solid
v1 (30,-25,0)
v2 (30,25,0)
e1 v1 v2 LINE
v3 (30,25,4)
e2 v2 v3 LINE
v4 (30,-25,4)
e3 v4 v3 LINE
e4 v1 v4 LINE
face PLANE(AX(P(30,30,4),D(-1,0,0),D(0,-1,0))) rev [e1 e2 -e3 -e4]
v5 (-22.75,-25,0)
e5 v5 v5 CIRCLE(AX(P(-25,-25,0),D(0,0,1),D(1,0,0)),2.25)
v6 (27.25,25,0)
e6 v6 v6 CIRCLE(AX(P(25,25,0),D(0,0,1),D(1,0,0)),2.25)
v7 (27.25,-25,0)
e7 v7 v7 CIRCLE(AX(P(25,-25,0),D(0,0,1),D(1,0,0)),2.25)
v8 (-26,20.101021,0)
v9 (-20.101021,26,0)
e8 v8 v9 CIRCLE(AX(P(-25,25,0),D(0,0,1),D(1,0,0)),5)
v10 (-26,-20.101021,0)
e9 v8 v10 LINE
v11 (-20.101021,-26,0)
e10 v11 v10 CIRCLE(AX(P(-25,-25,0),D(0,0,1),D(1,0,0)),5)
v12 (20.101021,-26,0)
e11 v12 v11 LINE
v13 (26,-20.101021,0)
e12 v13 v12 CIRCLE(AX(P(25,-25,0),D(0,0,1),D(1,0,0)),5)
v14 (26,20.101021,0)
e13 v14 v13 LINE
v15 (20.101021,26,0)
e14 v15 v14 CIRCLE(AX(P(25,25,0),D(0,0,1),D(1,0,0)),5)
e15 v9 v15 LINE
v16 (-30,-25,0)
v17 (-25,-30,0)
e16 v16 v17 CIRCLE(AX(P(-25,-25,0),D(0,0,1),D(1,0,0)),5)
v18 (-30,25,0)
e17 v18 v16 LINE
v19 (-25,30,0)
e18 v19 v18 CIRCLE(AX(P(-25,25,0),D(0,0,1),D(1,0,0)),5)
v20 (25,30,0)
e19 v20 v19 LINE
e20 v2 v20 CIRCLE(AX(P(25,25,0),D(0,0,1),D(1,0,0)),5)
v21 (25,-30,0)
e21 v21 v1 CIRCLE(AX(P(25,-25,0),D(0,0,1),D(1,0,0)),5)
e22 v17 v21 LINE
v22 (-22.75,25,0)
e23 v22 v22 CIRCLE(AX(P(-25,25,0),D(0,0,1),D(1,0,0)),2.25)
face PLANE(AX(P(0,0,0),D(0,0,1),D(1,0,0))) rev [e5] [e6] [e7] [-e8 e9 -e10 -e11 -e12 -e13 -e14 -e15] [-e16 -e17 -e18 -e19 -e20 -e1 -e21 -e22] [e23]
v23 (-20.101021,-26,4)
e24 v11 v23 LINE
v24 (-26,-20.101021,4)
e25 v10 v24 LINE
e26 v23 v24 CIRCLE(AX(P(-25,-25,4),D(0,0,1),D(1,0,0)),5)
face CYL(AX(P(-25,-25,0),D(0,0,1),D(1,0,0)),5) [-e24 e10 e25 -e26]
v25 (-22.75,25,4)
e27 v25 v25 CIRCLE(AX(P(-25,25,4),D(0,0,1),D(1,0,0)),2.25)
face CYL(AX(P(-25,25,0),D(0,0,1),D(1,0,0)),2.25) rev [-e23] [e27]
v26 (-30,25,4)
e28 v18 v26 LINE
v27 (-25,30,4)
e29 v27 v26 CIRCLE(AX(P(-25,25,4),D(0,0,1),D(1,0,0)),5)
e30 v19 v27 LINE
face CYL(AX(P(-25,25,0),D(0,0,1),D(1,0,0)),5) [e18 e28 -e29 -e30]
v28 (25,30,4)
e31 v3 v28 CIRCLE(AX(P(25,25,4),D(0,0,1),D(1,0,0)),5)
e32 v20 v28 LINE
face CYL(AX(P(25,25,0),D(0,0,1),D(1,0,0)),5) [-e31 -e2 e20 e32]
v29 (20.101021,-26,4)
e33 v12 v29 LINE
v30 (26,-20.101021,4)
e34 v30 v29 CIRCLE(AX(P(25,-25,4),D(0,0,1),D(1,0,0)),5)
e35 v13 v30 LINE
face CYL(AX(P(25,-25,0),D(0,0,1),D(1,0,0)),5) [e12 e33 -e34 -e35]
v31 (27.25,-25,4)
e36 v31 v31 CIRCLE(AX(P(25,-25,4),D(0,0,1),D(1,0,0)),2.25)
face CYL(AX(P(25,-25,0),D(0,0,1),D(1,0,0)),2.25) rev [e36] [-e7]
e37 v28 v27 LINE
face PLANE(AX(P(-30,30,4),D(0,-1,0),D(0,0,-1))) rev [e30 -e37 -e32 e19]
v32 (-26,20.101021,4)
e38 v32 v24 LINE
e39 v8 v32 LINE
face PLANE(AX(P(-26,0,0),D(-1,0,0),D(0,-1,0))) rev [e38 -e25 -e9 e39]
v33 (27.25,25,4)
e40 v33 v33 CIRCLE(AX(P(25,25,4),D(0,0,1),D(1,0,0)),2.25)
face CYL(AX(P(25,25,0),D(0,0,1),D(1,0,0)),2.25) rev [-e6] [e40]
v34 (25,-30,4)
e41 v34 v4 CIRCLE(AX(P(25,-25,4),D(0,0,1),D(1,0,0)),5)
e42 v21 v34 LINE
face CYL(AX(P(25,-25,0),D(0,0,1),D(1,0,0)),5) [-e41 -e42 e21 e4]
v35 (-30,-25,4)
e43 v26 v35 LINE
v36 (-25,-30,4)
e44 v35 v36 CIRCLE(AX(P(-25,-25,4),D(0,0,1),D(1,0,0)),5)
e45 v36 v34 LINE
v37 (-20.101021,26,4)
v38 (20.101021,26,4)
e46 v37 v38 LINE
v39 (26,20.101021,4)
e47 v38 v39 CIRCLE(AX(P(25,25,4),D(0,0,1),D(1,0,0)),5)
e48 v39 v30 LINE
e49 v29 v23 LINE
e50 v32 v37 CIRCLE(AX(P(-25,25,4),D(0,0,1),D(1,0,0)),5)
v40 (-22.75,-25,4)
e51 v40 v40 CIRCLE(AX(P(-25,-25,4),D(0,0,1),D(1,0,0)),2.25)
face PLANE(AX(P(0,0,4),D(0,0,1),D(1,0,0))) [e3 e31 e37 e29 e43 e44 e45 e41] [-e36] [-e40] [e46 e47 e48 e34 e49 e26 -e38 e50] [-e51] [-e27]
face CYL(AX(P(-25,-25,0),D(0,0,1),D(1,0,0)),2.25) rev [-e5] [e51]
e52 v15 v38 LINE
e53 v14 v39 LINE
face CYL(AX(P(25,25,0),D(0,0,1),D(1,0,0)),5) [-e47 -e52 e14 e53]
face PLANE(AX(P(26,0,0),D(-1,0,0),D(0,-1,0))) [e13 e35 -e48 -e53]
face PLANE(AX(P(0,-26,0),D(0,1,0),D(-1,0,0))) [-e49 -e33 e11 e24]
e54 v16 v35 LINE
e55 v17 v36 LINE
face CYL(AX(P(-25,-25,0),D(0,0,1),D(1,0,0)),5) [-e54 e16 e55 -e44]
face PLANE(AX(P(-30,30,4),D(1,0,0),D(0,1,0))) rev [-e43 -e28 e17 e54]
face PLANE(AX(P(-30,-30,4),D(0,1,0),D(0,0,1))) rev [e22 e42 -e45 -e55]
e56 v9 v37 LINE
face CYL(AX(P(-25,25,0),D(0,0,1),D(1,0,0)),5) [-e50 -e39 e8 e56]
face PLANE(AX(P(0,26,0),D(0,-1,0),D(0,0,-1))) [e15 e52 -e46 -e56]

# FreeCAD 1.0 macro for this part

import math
import FreeCAD as App
import Part
import Sketcher


def add_polygon(sketch, points):
    """Adds a closed chain of lines whose ends are joined by coincident constraints."""
    first, n = sketch.GeometryCount, len(points)
    for a, b in zip(points, points[1:] + points[:1]):
        sketch.addGeometry(Part.LineSegment(App.Vector(*a, 0), App.Vector(*b, 0)), False)
    for i in range(n):
        sketch.addConstraint(Sketcher.Constraint("Coincident", first + i, 2, first + (i + 1) % n, 1))

doc = App.newDocument("Part")
params = doc.addObject("Spreadsheet::Sheet", "Params")
for row, (alias, value) in enumerate([
    ("sketch1_width", "60 mm"),
    ("pad1_length", "4 mm"),
    ("sketch2_diameter", "4.5 mm"),
    ("pocket1_length", "4 mm"),
    ("sketch3_radius", "5 mm"),
    ("pocket2_length", "4 mm"),
], start=1):
    params.set(f"A{row}", alias)
    params.set(f"B{row}", "=" + value)
    params.setAlias(f"B{row}", alias)

body = doc.addObject("PartDesign::Body", "Body")

sketch1 = body.newObject("Sketcher::SketchObject", "Sketch")
sketch1.AttachmentSupport = (doc.getObject("XY_Plane"), [""])
sketch1.MapMode = "FlatFace"
add_polygon(sketch1, [(-30, 30), (-30, -30), (30, -30), (30, 30)])
sketch1.addConstraint([
    Sketcher.Constraint("Vertical", 0),
    Sketcher.Constraint("Horizontal", 1),
    Sketcher.Constraint("Vertical", 2),
    Sketcher.Constraint("Horizontal", 3),
    Sketcher.Constraint("Symmetric", 0, 2, 2, 2, -1, 1),
    Sketcher.Constraint("Equal", 3, 0),
    Sketcher.Constraint("DistanceX", 1, 1, 1, 2, 60.0),
])
sketch1.setExpression("Constraints[10]", "Params.sketch1_width")
pad1 = body.newObject("PartDesign::Pad", "Pad")
pad1.Profile = sketch1
pad1.setExpression("Length", "Params.pad1_length")

sketch2 = body.newObject("Sketcher::SketchObject", "Sketch001")
sketch2.AttachmentSupport = (doc.getObject("XY_Plane"), [""])
sketch2.MapMode = "FlatFace"
sketch2.AttachmentOffset = App.Placement(App.Vector(0, 0, 4), App.Rotation())
sketch2.addGeometry([
    Part.Circle(App.Vector(-25, 25, 0), App.Vector(0, 0, 1), 2.2),
    Part.Circle(App.Vector(25, 25, 0), App.Vector(0, 0, 1), 2.2),
    Part.Circle(App.Vector(25, -25, 0), App.Vector(0, 0, 1), 2.2),
    Part.Circle(App.Vector(-25, -25, 0), App.Vector(0, 0, 1), 2.2),
], False)
sketch2.addConstraint([
    Sketcher.Constraint("Equal", 0, 1),
    Sketcher.Constraint("Equal", 1, 2),
    Sketcher.Constraint("Equal", 2, 3),
    Sketcher.Constraint("Symmetric", 0, 3, 2, 3, -1, 1),
    Sketcher.Constraint("Symmetric", 1, 3, 3, 3, -1, 1),
    Sketcher.Constraint("Symmetric", 0, 3, 1, 3, -2),
    Sketcher.Constraint("Diameter", 0, 4.5),
    Sketcher.Constraint("DistanceX", 0, 3, -1, 1, 25.0),
    Sketcher.Constraint("DistanceY", -1, 1, 0, 3, 25.0),
])
sketch2.setExpression("Constraints[6]", "Params.sketch2_diameter")
pocket1 = body.newObject("PartDesign::Pocket", "Pocket")
pocket1.Profile = sketch2
pocket1.setExpression("Length", "Params.pocket1_length")

sketch3 = body.newObject("Sketcher::SketchObject", "Sketch002")
sketch3.AttachmentSupport = (doc.getObject("XY_Plane"), [""])
sketch3.MapMode = "FlatFace"
sketch3.AttachmentOffset = App.Placement(App.Vector(0, 0, 4), App.Rotation())
sketch3.addGeometry([
    Part.LineSegment(App.Vector(-25, 30, 0), App.Vector(-30, 30, 0)),
    Part.LineSegment(App.Vector(-30, 30, 0), App.Vector(-30, 25, 0)),
    Part.ArcOfCircle(Part.Circle(App.Vector(-25, 25, 0), App.Vector(0, 0, 1), 5), math.radians(90), math.radians(180)),
    Part.ArcOfCircle(Part.Circle(App.Vector(25, 25, 0), App.Vector(0, 0, 1), 5), math.radians(168), math.radians(282)),
    Part.LineSegment(App.Vector(20, 26, 0), App.Vector(-20, 26, 0)),
    Part.ArcOfCircle(Part.Circle(App.Vector(-25, 25, 0), App.Vector(0, 0, 1), 5), math.radians(-102), math.radians(12)),
    Part.LineSegment(App.Vector(-26, 20, 0), App.Vector(-26, -20, 0)),
    Part.ArcOfCircle(Part.Circle(App.Vector(-25, -25, 0), App.Vector(0, 0, 1), 5), math.radians(-12), math.radians(102)),
    Part.LineSegment(App.Vector(-20, -26, 0), App.Vector(20, -26, 0)),
    Part.ArcOfCircle(Part.Circle(App.Vector(25, -25, 0), App.Vector(0, 0, 1), 5), math.radians(78), math.radians(192)),
    Part.LineSegment(App.Vector(26, -20, 0), App.Vector(26, 20, 0)),
    Part.LineSegment(App.Vector(30, 30, 0), App.Vector(25, 30, 0)),
    Part.ArcOfCircle(Part.Circle(App.Vector(25, 25, 0), App.Vector(0, 0, 1), 5), math.radians(0), math.radians(90)),
    Part.LineSegment(App.Vector(30, 25, 0), App.Vector(30, 30, 0)),
    Part.ArcOfCircle(Part.Circle(App.Vector(25, -25, 0), App.Vector(0, 0, 1), 5), math.radians(-90), math.radians(0)),
    Part.LineSegment(App.Vector(25, -30, 0), App.Vector(30, -30, 0)),
    Part.LineSegment(App.Vector(30, -30, 0), App.Vector(30, -25, 0)),
    Part.ArcOfCircle(Part.Circle(App.Vector(-25, -25, 0), App.Vector(0, 0, 1), 5), math.radians(180), math.radians(270)),
    Part.LineSegment(App.Vector(-30, -25, 0), App.Vector(-30, -30, 0)),
    Part.LineSegment(App.Vector(-30, -30, 0), App.Vector(-25, -30, 0)),
], False)
sketch3.addConstraint([
    Sketcher.Constraint("Coincident", 0, 2, 1, 1),
    Sketcher.Constraint("Tangent", 1, 2, 2, 2),
    Sketcher.Constraint("Tangent", 2, 1, 0, 1),
    Sketcher.Constraint("Coincident", 3, 1, 4, 1),
    Sketcher.Constraint("Coincident", 4, 2, 5, 2),
    Sketcher.Constraint("Coincident", 5, 1, 6, 1),
    Sketcher.Constraint("Coincident", 6, 2, 7, 2),
    Sketcher.Constraint("Coincident", 7, 1, 8, 1),
    Sketcher.Constraint("Coincident", 8, 2, 9, 2),
    Sketcher.Constraint("Coincident", 9, 1, 10, 1),
    Sketcher.Constraint("Coincident", 10, 2, 3, 2),
    Sketcher.Constraint("Tangent", 11, 2, 12, 2),
    Sketcher.Constraint("Tangent", 12, 1, 13, 1),
    Sketcher.Constraint("Coincident", 13, 2, 11, 1),
    Sketcher.Constraint("Tangent", 14, 1, 15, 1),
    Sketcher.Constraint("Coincident", 15, 2, 16, 1),
    Sketcher.Constraint("Tangent", 16, 2, 14, 2),
    Sketcher.Constraint("Tangent", 17, 1, 18, 1),
    Sketcher.Constraint("Coincident", 18, 2, 19, 1),
    Sketcher.Constraint("Tangent", 19, 2, 17, 2),
    Sketcher.Constraint("Horizontal", 0),
    Sketcher.Constraint("Vertical", 1),
    Sketcher.Constraint("Horizontal", 4),
    Sketcher.Constraint("Vertical", 6),
    Sketcher.Constraint("Horizontal", 8),
    Sketcher.Constraint("Vertical", 10),
    Sketcher.Constraint("Horizontal", 11),
    Sketcher.Constraint("Vertical", 13),
    Sketcher.Constraint("Horizontal", 15),
    Sketcher.Constraint("Vertical", 16),
    Sketcher.Constraint("Vertical", 18),
    Sketcher.Constraint("Horizontal", 19),
    Sketcher.Constraint("Coincident", 5, 3, 2, 3),
    Sketcher.Constraint("Coincident", 12, 3, 3, 3),
    Sketcher.Constraint("Coincident", 14, 3, 9, 3),
    Sketcher.Constraint("Coincident", 17, 3, 7, 3),
    Sketcher.Constraint("Equal", 2, 3),
    Sketcher.Constraint("Equal", 3, 5),
    Sketcher.Constraint("Equal", 5, 7),
    Sketcher.Constraint("Equal", 7, 9),
    Sketcher.Constraint("Equal", 9, 12),
    Sketcher.Constraint("Equal", 12, 14),
    Sketcher.Constraint("Equal", 14, 17),
    Sketcher.Constraint("Symmetric", 3, 3, 7, 3, -1, 1),
    Sketcher.Constraint("Symmetric", 2, 3, 9, 3, -1, 1),
    Sketcher.Constraint("Symmetric", 2, 3, 3, 3, -2),
    Sketcher.Constraint("Horizontal", 6, 2, 9, 1),
    Sketcher.Constraint("Vertical", 4, 2, 7, 1),
    Sketcher.Constraint("Equal", 8, 6),
    Sketcher.Constraint("Radius", 2, 5.0),
    Sketcher.Constraint("DistanceX", 2, 3, -1, 1, 25.0),
    Sketcher.Constraint("DistanceY", -1, 1, 2, 3, 25.0),
    Sketcher.Constraint("DistanceY", -1, 1, 3, 1, 26.0),
])
sketch3.setExpression("Constraints[49]", "Params.sketch3_radius")
pocket2 = body.newObject("PartDesign::Pocket", "Pocket001")
pocket2.Profile = sketch3
pocket2.setExpression("Length", "Params.pocket2_length")

doc.recompute()
